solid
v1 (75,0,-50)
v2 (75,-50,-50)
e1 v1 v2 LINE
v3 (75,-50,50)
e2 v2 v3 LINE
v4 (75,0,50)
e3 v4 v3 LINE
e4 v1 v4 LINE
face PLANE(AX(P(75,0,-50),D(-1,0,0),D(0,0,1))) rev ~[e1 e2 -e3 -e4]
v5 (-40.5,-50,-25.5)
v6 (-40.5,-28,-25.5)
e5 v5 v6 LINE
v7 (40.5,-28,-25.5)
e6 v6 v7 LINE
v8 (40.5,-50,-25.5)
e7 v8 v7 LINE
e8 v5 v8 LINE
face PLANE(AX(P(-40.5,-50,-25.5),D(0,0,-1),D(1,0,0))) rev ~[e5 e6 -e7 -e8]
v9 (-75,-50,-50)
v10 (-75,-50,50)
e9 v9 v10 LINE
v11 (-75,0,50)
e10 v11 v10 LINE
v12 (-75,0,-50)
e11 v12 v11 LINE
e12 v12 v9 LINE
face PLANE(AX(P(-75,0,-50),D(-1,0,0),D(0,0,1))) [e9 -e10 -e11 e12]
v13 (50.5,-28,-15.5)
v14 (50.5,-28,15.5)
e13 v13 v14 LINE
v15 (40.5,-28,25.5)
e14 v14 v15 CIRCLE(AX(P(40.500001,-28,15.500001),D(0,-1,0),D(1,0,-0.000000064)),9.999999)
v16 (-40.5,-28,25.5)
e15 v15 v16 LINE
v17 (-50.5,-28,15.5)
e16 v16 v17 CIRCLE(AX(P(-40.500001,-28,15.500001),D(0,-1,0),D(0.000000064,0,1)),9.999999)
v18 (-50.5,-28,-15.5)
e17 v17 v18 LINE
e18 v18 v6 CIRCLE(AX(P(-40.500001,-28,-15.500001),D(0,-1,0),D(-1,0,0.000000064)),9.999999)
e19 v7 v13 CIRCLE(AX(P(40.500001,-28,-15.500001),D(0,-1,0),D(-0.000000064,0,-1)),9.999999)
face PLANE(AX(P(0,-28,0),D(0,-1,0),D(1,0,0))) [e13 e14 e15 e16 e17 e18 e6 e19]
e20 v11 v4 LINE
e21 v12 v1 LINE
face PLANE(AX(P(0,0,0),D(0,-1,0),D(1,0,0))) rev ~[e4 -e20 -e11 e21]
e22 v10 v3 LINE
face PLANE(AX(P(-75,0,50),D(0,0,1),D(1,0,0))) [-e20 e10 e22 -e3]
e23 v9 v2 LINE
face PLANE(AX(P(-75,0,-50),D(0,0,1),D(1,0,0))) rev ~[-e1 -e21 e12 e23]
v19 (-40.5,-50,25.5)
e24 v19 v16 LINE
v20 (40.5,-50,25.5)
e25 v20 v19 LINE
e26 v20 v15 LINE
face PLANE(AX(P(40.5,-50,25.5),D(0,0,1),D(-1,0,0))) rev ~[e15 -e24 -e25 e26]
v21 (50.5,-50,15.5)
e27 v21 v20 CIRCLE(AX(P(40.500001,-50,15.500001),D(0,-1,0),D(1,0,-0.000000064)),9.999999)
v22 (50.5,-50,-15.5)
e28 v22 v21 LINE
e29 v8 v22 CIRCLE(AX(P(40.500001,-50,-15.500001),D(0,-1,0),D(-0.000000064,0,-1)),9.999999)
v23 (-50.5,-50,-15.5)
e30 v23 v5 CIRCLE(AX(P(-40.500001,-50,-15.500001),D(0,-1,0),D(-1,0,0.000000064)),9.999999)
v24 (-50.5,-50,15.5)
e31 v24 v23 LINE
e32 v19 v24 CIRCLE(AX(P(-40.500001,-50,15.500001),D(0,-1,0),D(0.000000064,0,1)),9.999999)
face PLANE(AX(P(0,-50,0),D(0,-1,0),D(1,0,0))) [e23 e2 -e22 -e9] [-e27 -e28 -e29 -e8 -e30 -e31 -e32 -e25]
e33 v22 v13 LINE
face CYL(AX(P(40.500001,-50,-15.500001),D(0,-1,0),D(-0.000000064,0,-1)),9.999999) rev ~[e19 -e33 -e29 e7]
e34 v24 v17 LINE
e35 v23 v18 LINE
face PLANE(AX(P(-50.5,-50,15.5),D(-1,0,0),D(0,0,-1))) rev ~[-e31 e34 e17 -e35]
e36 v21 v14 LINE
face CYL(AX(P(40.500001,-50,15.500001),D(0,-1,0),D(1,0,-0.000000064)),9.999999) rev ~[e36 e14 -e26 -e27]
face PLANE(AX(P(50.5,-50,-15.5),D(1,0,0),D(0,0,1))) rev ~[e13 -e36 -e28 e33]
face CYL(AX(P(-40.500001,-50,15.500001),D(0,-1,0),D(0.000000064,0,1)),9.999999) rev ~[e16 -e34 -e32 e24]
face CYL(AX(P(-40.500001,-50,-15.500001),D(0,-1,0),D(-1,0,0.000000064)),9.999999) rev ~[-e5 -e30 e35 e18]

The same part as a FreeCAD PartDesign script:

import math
import FreeCAD as App
import Part
import Sketcher
from FreeCAD import Vector
Q = App.Units.Quantity

doc = App.newDocument("Part")
body = doc.addObject("PartDesign::Body", "Body")

sketch1 = body.newObject("Sketcher::SketchObject", "Sketch")
sketch1.AttachmentSupport = (doc.getObject("XZ_Plane"), [""])
sketch1.MapMode = "FlatFace"
sketch1.addGeometry(Part.LineSegment(Vector(-75, 50, 0), Vector(-75, -50, 0)), False)
sketch1.addGeometry(Part.LineSegment(Vector(-75, -50, 0), Vector(75, -50, 0)), False)
sketch1.addGeometry(Part.LineSegment(Vector(75, -50, 0), Vector(75, 50, 0)), False)
sketch1.addGeometry(Part.LineSegment(Vector(75, 50, 0), Vector(-75, 50, 0)), False)
sketch1.addConstraint(Sketcher.Constraint("Coincident", 0, 2, 1, 1))
sketch1.addConstraint(Sketcher.Constraint("Coincident", 1, 2, 2, 1))
sketch1.addConstraint(Sketcher.Constraint("Coincident", 2, 2, 3, 1))
sketch1.addConstraint(Sketcher.Constraint("Coincident", 3, 2, 0, 1))
sketch1.addConstraint(Sketcher.Constraint("Vertical", 0))
sketch1.addConstraint(Sketcher.Constraint("Horizontal", 1))
sketch1.addConstraint(Sketcher.Constraint("Vertical", 2))
sketch1.addConstraint(Sketcher.Constraint("Horizontal", 3))
sketch1.addConstraint(Sketcher.Constraint("Symmetric", 0, 2, 2, 2, -1, 1))
sketch1.addConstraint(Sketcher.Constraint("DistanceX", 1, 1, 1, 2, Q("150 mm")))
sketch1.addConstraint(Sketcher.Constraint("DistanceY", 0, 2, 0, 1, Q("100 mm")))
pad1 = body.newObject("PartDesign::Pad", "Pad")
pad1.Profile = sketch1
pad1.Length = 50

sketch2 = body.newObject("Sketcher::SketchObject", "Sketch001")
sketch2.AttachmentSupport = (doc.getObject("XZ_Plane"), [""])
sketch2.MapMode = "FlatFace"
sketch2.AttachmentOffset = App.Placement(Vector(0, 0, 50), App.Rotation())
sketch2.addGeometry(Part.ArcOfCircle(Part.Circle(Vector(41, 16, 0), Vector(0, 0, 1), 10), math.radians(0), math.radians(90)), False)
sketch2.addGeometry(Part.LineSegment(Vector(40, 26, 0), Vector(-40, 26, 0)), False)
sketch2.addGeometry(Part.ArcOfCircle(Part.Circle(Vector(-41, 16, 0), Vector(0, 0, 1), 10), math.radians(90), math.radians(180)), False)
sketch2.addGeometry(Part.LineSegment(Vector(-50, 16, 0), Vector(-50, -16, 0)), False)
sketch2.addGeometry(Part.ArcOfCircle(Part.Circle(Vector(-41, -16, 0), Vector(0, 0, 1), 10), math.radians(180), math.radians(270)), False)
sketch2.addGeometry(Part.LineSegment(Vector(-40, -26, 0), Vector(40, -26, 0)), False)
sketch2.addGeometry(Part.ArcOfCircle(Part.Circle(Vector(41, -16, 0), Vector(0, 0, 1), 10), math.radians(-90), math.radians(0)), False)
sketch2.addGeometry(Part.LineSegment(Vector(50, -16, 0), Vector(50, 16, 0)), False)
sketch2.addConstraint(Sketcher.Constraint("Tangent", 0, 2, 1, 1))
sketch2.addConstraint(Sketcher.Constraint("Tangent", 1, 2, 2, 1))
sketch2.addConstraint(Sketcher.Constraint("Tangent", 2, 2, 3, 1))
sketch2.addConstraint(Sketcher.Constraint("Tangent", 3, 2, 4, 1))
sketch2.addConstraint(Sketcher.Constraint("Tangent", 4, 2, 5, 1))
sketch2.addConstraint(Sketcher.Constraint("Tangent", 5, 2, 6, 1))
sketch2.addConstraint(Sketcher.Constraint("Tangent", 6, 2, 7, 1))
sketch2.addConstraint(Sketcher.Constraint("Tangent", 7, 2, 0, 1))
sketch2.addConstraint(Sketcher.Constraint("Horizontal", 1))
sketch2.addConstraint(Sketcher.Constraint("Vertical", 3))
sketch2.addConstraint(Sketcher.Constraint("Horizontal", 5))
sketch2.addConstraint(Sketcher.Constraint("Vertical", 7))
sketch2.addConstraint(Sketcher.Constraint("Equal", 0, 2))
sketch2.addConstraint(Sketcher.Constraint("Equal", 2, 4))
sketch2.addConstraint(Sketcher.Constraint("Equal", 4, 6))
sketch2.addConstraint(Sketcher.Constraint("Symmetric", 0, 3, 4, 3, -1, 1))
sketch2.addConstraint(Sketcher.Constraint("Radius", 0, Q("9.999999 mm")))
sketch2.addConstraint(Sketcher.Constraint("DistanceX", 1, 2, 1, 1, Q("81 mm")))
sketch2.addConstraint(Sketcher.Constraint("DistanceY", 3, 2, 3, 1, Q("31 mm")))
pocket1 = body.newObject("PartDesign::Pocket", "Pocket")
pocket1.Profile = sketch2
pocket1.Length = 22

doc.recompute()
